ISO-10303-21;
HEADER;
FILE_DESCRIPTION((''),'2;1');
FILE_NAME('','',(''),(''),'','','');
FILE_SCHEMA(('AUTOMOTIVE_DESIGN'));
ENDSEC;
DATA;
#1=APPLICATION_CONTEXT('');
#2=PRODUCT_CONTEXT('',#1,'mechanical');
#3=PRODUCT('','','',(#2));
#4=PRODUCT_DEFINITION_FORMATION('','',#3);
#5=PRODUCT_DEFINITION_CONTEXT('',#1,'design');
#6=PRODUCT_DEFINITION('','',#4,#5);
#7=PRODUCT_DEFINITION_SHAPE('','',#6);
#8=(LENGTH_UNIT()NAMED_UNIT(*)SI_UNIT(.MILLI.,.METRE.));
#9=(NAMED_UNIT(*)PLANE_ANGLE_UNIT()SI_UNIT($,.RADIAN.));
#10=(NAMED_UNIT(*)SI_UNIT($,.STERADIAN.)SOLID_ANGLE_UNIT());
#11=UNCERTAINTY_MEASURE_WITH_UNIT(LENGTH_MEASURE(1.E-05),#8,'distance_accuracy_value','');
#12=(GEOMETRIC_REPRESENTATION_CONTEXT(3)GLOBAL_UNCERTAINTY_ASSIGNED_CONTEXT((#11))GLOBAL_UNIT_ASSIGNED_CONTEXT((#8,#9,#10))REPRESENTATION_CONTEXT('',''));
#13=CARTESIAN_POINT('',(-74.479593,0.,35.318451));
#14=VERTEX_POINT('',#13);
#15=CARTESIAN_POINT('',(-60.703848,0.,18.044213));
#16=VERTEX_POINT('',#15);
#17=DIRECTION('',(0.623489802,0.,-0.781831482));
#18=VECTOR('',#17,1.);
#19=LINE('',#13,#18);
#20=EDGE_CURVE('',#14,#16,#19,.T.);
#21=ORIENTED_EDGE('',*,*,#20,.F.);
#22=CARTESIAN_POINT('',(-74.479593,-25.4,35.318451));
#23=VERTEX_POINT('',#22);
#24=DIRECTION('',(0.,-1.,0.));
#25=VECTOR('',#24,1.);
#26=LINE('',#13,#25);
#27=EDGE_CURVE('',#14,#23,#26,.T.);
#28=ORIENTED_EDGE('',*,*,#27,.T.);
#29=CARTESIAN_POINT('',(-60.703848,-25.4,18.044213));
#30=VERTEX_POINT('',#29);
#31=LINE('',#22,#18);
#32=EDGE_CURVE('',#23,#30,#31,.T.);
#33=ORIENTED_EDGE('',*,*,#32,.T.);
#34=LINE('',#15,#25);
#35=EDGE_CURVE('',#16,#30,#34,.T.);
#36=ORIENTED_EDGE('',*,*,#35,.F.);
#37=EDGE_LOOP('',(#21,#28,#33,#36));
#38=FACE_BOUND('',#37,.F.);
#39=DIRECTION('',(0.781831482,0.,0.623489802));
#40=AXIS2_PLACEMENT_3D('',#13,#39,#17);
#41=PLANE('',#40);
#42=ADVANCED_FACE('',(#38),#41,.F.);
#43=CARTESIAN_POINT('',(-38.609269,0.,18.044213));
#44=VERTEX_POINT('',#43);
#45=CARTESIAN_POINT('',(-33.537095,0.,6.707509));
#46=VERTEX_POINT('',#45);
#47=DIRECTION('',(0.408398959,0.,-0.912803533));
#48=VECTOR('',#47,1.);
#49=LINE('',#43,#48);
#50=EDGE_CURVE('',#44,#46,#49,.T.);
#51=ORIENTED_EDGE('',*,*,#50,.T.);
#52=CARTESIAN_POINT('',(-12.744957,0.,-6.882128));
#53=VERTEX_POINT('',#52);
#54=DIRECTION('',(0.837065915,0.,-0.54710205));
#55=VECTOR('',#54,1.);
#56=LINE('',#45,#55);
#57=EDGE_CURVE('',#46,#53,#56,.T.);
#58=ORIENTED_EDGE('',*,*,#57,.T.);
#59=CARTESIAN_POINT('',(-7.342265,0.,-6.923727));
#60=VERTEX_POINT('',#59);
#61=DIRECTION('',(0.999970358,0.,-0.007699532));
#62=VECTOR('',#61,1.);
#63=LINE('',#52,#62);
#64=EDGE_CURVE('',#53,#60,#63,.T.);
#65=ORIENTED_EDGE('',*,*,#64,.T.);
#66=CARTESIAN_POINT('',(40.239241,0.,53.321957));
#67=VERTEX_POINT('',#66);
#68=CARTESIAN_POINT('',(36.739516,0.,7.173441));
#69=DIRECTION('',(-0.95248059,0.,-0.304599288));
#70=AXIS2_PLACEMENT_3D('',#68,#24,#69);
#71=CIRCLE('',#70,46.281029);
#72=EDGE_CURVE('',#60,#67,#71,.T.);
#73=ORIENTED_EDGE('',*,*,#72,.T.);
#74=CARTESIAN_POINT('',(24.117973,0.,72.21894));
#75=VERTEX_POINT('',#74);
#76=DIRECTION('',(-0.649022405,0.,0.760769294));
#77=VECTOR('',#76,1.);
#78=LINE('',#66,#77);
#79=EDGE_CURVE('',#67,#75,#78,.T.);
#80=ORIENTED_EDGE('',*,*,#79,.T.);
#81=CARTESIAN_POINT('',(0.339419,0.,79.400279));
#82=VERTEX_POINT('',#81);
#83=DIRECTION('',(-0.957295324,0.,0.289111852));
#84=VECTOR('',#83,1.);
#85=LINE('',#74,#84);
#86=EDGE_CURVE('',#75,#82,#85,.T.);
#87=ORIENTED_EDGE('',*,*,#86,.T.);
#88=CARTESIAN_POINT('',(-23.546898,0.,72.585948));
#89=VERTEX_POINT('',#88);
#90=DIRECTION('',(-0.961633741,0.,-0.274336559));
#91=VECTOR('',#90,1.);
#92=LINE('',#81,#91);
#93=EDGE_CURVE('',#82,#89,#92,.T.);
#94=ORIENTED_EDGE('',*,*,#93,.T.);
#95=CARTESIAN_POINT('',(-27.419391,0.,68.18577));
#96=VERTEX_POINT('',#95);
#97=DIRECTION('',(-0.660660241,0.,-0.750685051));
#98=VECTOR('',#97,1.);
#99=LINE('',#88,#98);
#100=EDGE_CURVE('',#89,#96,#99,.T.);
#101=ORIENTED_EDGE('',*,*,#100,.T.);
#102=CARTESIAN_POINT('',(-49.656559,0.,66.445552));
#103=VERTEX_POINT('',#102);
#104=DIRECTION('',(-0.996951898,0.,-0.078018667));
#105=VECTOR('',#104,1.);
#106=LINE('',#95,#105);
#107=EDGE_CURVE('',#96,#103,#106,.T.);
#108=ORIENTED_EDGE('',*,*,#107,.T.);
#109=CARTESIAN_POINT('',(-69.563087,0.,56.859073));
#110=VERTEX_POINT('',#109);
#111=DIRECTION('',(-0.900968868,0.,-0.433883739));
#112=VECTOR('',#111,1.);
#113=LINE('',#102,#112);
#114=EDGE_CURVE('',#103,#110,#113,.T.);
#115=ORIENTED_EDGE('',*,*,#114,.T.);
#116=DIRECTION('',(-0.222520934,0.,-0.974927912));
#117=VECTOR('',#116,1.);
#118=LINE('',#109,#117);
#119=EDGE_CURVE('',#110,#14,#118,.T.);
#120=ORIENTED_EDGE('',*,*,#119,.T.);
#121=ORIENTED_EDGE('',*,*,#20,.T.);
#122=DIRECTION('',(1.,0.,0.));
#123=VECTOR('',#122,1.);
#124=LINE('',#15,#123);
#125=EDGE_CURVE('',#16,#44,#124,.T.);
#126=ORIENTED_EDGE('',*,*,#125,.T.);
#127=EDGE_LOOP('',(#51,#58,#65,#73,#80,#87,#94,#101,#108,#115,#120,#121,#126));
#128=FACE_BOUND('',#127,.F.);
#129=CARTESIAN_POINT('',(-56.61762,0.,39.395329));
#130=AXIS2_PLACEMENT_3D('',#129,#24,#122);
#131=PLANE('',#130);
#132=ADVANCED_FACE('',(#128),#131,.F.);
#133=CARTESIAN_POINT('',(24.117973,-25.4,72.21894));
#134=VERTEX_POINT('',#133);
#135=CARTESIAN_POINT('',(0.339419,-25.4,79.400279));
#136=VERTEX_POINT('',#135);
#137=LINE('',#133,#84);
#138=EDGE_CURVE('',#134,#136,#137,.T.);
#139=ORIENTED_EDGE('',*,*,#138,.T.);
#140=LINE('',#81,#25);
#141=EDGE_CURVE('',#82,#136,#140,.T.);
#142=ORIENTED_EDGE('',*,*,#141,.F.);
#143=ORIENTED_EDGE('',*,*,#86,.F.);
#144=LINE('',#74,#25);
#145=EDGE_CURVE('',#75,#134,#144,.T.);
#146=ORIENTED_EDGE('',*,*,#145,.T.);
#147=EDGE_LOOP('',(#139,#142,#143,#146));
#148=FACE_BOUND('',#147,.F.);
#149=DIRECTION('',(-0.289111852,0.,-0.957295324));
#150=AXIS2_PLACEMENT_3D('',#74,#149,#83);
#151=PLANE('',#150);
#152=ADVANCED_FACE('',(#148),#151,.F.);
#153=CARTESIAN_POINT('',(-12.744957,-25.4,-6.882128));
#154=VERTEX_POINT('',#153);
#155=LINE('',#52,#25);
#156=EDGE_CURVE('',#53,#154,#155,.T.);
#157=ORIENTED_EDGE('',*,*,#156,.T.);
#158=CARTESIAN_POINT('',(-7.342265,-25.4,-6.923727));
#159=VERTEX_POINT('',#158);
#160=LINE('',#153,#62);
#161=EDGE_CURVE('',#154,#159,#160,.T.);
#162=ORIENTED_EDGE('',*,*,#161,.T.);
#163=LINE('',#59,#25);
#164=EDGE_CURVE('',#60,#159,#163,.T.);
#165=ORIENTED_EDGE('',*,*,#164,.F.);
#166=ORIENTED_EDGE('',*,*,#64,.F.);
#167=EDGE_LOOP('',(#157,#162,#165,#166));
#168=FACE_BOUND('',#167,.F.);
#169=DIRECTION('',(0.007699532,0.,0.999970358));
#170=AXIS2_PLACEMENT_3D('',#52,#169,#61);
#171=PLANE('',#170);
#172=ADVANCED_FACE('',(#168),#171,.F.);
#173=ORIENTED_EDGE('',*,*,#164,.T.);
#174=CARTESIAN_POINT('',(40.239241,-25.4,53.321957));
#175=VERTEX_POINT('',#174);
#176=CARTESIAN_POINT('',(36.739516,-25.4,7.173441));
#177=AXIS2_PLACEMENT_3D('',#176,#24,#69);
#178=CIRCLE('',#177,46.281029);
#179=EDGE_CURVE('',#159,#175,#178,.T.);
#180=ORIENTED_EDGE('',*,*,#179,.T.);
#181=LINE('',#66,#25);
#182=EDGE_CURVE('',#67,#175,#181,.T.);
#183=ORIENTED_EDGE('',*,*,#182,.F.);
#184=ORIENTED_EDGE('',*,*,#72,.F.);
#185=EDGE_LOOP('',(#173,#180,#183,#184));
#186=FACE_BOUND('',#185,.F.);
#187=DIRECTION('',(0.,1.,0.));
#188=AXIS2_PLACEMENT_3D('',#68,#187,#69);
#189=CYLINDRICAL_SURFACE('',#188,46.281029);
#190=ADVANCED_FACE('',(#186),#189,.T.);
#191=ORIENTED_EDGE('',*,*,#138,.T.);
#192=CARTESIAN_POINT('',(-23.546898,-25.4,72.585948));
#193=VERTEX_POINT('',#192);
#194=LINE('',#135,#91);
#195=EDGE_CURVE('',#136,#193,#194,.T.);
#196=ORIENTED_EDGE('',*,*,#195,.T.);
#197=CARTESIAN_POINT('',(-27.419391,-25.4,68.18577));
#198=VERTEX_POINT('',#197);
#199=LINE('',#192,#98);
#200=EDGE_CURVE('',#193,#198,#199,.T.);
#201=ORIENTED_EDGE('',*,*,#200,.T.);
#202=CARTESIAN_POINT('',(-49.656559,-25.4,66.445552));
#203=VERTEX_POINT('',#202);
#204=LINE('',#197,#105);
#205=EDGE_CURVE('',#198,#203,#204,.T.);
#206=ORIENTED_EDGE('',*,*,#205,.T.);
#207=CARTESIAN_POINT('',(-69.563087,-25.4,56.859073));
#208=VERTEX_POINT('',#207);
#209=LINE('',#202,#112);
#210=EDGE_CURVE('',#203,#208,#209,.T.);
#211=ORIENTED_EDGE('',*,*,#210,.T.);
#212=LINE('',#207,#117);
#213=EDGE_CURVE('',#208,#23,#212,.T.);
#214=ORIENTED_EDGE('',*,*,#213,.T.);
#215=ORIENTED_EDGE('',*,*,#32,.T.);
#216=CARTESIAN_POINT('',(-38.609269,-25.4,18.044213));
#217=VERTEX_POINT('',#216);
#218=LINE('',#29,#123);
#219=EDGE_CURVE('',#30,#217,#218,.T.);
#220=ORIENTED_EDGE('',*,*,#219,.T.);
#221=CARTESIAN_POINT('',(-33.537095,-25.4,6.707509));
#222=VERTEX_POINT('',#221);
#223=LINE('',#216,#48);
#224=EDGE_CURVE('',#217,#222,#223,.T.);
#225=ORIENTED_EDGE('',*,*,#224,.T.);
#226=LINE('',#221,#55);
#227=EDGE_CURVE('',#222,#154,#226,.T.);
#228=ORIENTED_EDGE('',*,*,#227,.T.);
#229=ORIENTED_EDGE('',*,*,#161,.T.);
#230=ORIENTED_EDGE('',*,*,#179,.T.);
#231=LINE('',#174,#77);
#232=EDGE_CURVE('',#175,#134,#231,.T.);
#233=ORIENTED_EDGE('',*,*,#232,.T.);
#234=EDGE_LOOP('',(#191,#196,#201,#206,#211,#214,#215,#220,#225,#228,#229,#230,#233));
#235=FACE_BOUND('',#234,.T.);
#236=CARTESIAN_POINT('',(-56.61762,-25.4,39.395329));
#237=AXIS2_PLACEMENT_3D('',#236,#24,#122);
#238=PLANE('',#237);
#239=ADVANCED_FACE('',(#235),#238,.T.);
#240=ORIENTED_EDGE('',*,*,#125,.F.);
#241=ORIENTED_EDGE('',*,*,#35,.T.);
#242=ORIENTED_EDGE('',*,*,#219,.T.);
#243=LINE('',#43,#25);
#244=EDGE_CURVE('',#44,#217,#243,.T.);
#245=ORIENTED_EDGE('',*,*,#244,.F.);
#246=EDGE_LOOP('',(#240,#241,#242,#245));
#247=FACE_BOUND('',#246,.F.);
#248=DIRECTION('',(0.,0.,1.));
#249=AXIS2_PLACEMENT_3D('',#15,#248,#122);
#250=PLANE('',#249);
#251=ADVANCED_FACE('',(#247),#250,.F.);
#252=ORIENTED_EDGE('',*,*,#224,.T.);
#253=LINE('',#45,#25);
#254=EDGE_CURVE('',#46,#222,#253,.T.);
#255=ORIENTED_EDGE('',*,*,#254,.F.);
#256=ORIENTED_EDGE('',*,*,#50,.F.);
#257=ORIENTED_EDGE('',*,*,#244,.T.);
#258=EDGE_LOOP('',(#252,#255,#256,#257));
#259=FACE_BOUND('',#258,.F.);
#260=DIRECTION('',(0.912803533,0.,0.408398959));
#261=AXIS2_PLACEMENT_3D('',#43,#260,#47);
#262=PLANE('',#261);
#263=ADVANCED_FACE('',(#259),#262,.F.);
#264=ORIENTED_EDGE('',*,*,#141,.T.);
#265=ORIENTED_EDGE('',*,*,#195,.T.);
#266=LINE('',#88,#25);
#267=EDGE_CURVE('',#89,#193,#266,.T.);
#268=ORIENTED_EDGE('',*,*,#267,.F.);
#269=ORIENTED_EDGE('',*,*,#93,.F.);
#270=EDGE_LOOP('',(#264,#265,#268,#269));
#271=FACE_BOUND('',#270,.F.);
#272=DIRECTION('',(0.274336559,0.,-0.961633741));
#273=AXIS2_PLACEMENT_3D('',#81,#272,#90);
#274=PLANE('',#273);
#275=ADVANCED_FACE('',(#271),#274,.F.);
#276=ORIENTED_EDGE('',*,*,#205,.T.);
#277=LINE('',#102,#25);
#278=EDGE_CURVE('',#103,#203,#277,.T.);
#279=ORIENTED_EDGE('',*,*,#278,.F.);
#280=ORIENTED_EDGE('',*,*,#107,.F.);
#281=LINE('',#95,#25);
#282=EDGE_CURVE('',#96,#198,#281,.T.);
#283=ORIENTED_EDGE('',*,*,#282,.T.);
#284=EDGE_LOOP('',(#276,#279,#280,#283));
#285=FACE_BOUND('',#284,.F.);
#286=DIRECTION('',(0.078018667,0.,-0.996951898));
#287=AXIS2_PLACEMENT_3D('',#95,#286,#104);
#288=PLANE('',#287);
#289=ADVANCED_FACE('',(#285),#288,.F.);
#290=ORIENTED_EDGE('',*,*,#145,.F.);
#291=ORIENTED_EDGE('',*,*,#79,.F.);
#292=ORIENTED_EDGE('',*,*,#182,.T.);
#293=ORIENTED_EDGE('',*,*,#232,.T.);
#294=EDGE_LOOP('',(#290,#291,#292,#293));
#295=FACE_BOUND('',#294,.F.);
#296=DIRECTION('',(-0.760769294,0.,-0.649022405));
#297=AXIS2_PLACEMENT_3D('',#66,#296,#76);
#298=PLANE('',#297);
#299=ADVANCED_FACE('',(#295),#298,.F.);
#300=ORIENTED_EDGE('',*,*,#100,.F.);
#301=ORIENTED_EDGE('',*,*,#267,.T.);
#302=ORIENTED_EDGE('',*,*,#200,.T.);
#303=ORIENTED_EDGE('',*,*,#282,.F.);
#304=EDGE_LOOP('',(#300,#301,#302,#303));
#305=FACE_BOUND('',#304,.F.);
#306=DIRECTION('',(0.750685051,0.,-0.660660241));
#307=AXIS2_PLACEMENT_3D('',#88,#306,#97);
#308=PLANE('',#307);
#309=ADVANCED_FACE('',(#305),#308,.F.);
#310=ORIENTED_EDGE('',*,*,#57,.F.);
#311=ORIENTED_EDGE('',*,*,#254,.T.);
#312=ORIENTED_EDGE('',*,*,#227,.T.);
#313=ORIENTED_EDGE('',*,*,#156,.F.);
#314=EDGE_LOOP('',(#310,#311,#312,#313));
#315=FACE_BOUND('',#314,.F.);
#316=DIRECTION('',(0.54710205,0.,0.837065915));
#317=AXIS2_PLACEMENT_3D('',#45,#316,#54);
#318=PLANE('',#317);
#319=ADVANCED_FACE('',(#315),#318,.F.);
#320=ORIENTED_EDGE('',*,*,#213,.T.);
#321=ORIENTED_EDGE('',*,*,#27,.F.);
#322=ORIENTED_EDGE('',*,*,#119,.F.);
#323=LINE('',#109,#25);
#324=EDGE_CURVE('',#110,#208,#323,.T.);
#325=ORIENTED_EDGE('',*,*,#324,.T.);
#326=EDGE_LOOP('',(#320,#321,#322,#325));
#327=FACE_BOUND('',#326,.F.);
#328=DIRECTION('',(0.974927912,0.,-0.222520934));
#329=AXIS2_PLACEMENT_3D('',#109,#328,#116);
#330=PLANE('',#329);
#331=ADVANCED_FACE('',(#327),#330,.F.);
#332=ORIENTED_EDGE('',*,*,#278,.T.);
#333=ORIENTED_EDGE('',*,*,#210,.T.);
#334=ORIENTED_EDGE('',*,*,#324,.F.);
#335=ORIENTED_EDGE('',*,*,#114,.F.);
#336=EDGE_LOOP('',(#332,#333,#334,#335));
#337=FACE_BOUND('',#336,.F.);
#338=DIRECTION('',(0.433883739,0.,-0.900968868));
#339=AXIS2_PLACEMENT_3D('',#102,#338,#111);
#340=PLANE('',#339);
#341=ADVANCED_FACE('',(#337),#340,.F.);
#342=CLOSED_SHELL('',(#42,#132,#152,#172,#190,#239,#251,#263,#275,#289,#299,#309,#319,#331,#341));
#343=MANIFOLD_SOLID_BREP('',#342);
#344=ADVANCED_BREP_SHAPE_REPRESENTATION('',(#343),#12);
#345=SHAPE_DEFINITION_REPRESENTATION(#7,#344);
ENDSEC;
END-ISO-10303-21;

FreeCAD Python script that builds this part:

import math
import FreeCAD as App
import Part
import Sketcher
from FreeCAD import Vector
Q = App.Units.Quantity

doc = App.newDocument("Part")
body = doc.addObject("PartDesign::Body", "Body")

sketch1 = body.newObject("Sketcher::SketchObject", "Sketch")
sketch1.AttachmentSupport = (doc.getObject("XZ_Plane"), [""])
sketch1.MapMode = "FlatFace"
sketch1.addGeometry([
    Part.LineSegment(Vector(-61, 18, 0), Vector(-39, 18, 0)),
    Part.LineSegment(Vector(-39, 18, 0), Vector(-34, 7, 0)),
    Part.LineSegment(Vector(-34, 7, 0), Vector(-13, -7, 0)),
    Part.LineSegment(Vector(-13, -7, 0), Vector(-7, -7, 0)),
    Part.ArcOfCircle(Part.Circle(Vector(37, 7, 0), Vector(0, 0, 1), 46), math.radians(-162), math.radians(86)),
    Part.LineSegment(Vector(40, 53, 0), Vector(24, 72, 0)),
    Part.LineSegment(Vector(24, 72, 0), Vector(0, 79, 0)),
    Part.LineSegment(Vector(0, 79, 0), Vector(-24, 73, 0)),
    Part.LineSegment(Vector(-24, 73, 0), Vector(-27, 68, 0)),
    Part.LineSegment(Vector(-27, 68, 0), Vector(-50, 66, 0)),
    Part.LineSegment(Vector(-50, 66, 0), Vector(-70, 57, 0)),
    Part.LineSegment(Vector(-70, 57, 0), Vector(-74, 35, 0)),
    Part.LineSegment(Vector(-74, 35, 0), Vector(-61, 18, 0)),
], False)
sketch1.addConstraint([
    Sketcher.Constraint("Coincident", 0, 2, 1, 1),
    Sketcher.Constraint("Coincident", 1, 2, 2, 1),
    Sketcher.Constraint("Coincident", 2, 2, 3, 1),
    Sketcher.Constraint("Coincident", 3, 2, 4, 1),
    Sketcher.Constraint("Coincident", 4, 2, 5, 1),
    Sketcher.Constraint("Coincident", 5, 2, 6, 1),
    Sketcher.Constraint("Coincident", 6, 2, 7, 1),
    Sketcher.Constraint("Coincident", 7, 2, 8, 1),
    Sketcher.Constraint("Coincident", 8, 2, 9, 1),
    Sketcher.Constraint("Coincident", 9, 2, 10, 1),
    Sketcher.Constraint("Coincident", 10, 2, 11, 1),
    Sketcher.Constraint("Coincident", 11, 2, 12, 1),
    Sketcher.Constraint("Coincident", 12, 2, 0, 1),
    Sketcher.Constraint("Horizontal", 0),
    Sketcher.Constraint("Equal", 2, 5),
    Sketcher.Constraint("Equal", 5, 6),
    Sketcher.Constraint("Equal", 6, 7),
    Sketcher.Constraint("Equal", 10, 11),
    Sketcher.Constraint("Equal", 11, 12),
    Sketcher.Constraint("Radius", 4, 46.281029),
    Sketcher.Constraint("DistanceX", 0, 1, 0, 2, 22.094579),
    Sketcher.Constraint("DistanceY", 3, 2, 2, 2, 0.041599),
    Sketcher.Constraint("DistanceY", 4, 3, 5, 2, 65.045499),
    Sketcher.Constraint("DistanceY", 11, 2, 9, 2, 31.127101),
    Sketcher.Constraint("DistanceX", 11, 2, 1, 2, 40.942498),
    Sketcher.Constraint("Distance", 2, 24.839308),
    Sketcher.Constraint("Distance", 3, 5.402851),
    Sketcher.Constraint("Distance", 8, 5.86155),
    Sketcher.Constraint("Distance", 10, 22.094579),
    Sketcher.Constraint("DistanceY", -1, 1, 4, 3, 7.173441),
    Sketcher.Constraint("DistanceX", 0, 2, -1, 1, 38.609269),
    Sketcher.Constraint("DistanceY", -1, 1, 1, 2, 6.707509),
    Sketcher.Constraint("DistanceY", 2, 2, -1, 1, 6.882128),
    Sketcher.Constraint("DistanceX", -1, 1, 4, 2, 40.239241),
    Sketcher.Constraint("DistanceX", -1, 1, 6, 2, 0.339419),
    Sketcher.Constraint("DistanceY", -1, 1, 6, 2, 79.400279),
    Sketcher.Constraint("DistanceY", -1, 1, 7, 2, 72.585948),
    Sketcher.Constraint("DistanceX", 8, 2, -1, 1, 27.419391),
    Sketcher.Constraint("DistanceX", 9, 2, -1, 1, 49.656559),
    Sketcher.Constraint("DistanceY", -1, 1, 9, 2, 66.445552),
])
pad1 = body.newObject("PartDesign::Pad", "Pad")
pad1.Profile = sketch1
pad1.Length = Q("1 in")

doc.recompute()
